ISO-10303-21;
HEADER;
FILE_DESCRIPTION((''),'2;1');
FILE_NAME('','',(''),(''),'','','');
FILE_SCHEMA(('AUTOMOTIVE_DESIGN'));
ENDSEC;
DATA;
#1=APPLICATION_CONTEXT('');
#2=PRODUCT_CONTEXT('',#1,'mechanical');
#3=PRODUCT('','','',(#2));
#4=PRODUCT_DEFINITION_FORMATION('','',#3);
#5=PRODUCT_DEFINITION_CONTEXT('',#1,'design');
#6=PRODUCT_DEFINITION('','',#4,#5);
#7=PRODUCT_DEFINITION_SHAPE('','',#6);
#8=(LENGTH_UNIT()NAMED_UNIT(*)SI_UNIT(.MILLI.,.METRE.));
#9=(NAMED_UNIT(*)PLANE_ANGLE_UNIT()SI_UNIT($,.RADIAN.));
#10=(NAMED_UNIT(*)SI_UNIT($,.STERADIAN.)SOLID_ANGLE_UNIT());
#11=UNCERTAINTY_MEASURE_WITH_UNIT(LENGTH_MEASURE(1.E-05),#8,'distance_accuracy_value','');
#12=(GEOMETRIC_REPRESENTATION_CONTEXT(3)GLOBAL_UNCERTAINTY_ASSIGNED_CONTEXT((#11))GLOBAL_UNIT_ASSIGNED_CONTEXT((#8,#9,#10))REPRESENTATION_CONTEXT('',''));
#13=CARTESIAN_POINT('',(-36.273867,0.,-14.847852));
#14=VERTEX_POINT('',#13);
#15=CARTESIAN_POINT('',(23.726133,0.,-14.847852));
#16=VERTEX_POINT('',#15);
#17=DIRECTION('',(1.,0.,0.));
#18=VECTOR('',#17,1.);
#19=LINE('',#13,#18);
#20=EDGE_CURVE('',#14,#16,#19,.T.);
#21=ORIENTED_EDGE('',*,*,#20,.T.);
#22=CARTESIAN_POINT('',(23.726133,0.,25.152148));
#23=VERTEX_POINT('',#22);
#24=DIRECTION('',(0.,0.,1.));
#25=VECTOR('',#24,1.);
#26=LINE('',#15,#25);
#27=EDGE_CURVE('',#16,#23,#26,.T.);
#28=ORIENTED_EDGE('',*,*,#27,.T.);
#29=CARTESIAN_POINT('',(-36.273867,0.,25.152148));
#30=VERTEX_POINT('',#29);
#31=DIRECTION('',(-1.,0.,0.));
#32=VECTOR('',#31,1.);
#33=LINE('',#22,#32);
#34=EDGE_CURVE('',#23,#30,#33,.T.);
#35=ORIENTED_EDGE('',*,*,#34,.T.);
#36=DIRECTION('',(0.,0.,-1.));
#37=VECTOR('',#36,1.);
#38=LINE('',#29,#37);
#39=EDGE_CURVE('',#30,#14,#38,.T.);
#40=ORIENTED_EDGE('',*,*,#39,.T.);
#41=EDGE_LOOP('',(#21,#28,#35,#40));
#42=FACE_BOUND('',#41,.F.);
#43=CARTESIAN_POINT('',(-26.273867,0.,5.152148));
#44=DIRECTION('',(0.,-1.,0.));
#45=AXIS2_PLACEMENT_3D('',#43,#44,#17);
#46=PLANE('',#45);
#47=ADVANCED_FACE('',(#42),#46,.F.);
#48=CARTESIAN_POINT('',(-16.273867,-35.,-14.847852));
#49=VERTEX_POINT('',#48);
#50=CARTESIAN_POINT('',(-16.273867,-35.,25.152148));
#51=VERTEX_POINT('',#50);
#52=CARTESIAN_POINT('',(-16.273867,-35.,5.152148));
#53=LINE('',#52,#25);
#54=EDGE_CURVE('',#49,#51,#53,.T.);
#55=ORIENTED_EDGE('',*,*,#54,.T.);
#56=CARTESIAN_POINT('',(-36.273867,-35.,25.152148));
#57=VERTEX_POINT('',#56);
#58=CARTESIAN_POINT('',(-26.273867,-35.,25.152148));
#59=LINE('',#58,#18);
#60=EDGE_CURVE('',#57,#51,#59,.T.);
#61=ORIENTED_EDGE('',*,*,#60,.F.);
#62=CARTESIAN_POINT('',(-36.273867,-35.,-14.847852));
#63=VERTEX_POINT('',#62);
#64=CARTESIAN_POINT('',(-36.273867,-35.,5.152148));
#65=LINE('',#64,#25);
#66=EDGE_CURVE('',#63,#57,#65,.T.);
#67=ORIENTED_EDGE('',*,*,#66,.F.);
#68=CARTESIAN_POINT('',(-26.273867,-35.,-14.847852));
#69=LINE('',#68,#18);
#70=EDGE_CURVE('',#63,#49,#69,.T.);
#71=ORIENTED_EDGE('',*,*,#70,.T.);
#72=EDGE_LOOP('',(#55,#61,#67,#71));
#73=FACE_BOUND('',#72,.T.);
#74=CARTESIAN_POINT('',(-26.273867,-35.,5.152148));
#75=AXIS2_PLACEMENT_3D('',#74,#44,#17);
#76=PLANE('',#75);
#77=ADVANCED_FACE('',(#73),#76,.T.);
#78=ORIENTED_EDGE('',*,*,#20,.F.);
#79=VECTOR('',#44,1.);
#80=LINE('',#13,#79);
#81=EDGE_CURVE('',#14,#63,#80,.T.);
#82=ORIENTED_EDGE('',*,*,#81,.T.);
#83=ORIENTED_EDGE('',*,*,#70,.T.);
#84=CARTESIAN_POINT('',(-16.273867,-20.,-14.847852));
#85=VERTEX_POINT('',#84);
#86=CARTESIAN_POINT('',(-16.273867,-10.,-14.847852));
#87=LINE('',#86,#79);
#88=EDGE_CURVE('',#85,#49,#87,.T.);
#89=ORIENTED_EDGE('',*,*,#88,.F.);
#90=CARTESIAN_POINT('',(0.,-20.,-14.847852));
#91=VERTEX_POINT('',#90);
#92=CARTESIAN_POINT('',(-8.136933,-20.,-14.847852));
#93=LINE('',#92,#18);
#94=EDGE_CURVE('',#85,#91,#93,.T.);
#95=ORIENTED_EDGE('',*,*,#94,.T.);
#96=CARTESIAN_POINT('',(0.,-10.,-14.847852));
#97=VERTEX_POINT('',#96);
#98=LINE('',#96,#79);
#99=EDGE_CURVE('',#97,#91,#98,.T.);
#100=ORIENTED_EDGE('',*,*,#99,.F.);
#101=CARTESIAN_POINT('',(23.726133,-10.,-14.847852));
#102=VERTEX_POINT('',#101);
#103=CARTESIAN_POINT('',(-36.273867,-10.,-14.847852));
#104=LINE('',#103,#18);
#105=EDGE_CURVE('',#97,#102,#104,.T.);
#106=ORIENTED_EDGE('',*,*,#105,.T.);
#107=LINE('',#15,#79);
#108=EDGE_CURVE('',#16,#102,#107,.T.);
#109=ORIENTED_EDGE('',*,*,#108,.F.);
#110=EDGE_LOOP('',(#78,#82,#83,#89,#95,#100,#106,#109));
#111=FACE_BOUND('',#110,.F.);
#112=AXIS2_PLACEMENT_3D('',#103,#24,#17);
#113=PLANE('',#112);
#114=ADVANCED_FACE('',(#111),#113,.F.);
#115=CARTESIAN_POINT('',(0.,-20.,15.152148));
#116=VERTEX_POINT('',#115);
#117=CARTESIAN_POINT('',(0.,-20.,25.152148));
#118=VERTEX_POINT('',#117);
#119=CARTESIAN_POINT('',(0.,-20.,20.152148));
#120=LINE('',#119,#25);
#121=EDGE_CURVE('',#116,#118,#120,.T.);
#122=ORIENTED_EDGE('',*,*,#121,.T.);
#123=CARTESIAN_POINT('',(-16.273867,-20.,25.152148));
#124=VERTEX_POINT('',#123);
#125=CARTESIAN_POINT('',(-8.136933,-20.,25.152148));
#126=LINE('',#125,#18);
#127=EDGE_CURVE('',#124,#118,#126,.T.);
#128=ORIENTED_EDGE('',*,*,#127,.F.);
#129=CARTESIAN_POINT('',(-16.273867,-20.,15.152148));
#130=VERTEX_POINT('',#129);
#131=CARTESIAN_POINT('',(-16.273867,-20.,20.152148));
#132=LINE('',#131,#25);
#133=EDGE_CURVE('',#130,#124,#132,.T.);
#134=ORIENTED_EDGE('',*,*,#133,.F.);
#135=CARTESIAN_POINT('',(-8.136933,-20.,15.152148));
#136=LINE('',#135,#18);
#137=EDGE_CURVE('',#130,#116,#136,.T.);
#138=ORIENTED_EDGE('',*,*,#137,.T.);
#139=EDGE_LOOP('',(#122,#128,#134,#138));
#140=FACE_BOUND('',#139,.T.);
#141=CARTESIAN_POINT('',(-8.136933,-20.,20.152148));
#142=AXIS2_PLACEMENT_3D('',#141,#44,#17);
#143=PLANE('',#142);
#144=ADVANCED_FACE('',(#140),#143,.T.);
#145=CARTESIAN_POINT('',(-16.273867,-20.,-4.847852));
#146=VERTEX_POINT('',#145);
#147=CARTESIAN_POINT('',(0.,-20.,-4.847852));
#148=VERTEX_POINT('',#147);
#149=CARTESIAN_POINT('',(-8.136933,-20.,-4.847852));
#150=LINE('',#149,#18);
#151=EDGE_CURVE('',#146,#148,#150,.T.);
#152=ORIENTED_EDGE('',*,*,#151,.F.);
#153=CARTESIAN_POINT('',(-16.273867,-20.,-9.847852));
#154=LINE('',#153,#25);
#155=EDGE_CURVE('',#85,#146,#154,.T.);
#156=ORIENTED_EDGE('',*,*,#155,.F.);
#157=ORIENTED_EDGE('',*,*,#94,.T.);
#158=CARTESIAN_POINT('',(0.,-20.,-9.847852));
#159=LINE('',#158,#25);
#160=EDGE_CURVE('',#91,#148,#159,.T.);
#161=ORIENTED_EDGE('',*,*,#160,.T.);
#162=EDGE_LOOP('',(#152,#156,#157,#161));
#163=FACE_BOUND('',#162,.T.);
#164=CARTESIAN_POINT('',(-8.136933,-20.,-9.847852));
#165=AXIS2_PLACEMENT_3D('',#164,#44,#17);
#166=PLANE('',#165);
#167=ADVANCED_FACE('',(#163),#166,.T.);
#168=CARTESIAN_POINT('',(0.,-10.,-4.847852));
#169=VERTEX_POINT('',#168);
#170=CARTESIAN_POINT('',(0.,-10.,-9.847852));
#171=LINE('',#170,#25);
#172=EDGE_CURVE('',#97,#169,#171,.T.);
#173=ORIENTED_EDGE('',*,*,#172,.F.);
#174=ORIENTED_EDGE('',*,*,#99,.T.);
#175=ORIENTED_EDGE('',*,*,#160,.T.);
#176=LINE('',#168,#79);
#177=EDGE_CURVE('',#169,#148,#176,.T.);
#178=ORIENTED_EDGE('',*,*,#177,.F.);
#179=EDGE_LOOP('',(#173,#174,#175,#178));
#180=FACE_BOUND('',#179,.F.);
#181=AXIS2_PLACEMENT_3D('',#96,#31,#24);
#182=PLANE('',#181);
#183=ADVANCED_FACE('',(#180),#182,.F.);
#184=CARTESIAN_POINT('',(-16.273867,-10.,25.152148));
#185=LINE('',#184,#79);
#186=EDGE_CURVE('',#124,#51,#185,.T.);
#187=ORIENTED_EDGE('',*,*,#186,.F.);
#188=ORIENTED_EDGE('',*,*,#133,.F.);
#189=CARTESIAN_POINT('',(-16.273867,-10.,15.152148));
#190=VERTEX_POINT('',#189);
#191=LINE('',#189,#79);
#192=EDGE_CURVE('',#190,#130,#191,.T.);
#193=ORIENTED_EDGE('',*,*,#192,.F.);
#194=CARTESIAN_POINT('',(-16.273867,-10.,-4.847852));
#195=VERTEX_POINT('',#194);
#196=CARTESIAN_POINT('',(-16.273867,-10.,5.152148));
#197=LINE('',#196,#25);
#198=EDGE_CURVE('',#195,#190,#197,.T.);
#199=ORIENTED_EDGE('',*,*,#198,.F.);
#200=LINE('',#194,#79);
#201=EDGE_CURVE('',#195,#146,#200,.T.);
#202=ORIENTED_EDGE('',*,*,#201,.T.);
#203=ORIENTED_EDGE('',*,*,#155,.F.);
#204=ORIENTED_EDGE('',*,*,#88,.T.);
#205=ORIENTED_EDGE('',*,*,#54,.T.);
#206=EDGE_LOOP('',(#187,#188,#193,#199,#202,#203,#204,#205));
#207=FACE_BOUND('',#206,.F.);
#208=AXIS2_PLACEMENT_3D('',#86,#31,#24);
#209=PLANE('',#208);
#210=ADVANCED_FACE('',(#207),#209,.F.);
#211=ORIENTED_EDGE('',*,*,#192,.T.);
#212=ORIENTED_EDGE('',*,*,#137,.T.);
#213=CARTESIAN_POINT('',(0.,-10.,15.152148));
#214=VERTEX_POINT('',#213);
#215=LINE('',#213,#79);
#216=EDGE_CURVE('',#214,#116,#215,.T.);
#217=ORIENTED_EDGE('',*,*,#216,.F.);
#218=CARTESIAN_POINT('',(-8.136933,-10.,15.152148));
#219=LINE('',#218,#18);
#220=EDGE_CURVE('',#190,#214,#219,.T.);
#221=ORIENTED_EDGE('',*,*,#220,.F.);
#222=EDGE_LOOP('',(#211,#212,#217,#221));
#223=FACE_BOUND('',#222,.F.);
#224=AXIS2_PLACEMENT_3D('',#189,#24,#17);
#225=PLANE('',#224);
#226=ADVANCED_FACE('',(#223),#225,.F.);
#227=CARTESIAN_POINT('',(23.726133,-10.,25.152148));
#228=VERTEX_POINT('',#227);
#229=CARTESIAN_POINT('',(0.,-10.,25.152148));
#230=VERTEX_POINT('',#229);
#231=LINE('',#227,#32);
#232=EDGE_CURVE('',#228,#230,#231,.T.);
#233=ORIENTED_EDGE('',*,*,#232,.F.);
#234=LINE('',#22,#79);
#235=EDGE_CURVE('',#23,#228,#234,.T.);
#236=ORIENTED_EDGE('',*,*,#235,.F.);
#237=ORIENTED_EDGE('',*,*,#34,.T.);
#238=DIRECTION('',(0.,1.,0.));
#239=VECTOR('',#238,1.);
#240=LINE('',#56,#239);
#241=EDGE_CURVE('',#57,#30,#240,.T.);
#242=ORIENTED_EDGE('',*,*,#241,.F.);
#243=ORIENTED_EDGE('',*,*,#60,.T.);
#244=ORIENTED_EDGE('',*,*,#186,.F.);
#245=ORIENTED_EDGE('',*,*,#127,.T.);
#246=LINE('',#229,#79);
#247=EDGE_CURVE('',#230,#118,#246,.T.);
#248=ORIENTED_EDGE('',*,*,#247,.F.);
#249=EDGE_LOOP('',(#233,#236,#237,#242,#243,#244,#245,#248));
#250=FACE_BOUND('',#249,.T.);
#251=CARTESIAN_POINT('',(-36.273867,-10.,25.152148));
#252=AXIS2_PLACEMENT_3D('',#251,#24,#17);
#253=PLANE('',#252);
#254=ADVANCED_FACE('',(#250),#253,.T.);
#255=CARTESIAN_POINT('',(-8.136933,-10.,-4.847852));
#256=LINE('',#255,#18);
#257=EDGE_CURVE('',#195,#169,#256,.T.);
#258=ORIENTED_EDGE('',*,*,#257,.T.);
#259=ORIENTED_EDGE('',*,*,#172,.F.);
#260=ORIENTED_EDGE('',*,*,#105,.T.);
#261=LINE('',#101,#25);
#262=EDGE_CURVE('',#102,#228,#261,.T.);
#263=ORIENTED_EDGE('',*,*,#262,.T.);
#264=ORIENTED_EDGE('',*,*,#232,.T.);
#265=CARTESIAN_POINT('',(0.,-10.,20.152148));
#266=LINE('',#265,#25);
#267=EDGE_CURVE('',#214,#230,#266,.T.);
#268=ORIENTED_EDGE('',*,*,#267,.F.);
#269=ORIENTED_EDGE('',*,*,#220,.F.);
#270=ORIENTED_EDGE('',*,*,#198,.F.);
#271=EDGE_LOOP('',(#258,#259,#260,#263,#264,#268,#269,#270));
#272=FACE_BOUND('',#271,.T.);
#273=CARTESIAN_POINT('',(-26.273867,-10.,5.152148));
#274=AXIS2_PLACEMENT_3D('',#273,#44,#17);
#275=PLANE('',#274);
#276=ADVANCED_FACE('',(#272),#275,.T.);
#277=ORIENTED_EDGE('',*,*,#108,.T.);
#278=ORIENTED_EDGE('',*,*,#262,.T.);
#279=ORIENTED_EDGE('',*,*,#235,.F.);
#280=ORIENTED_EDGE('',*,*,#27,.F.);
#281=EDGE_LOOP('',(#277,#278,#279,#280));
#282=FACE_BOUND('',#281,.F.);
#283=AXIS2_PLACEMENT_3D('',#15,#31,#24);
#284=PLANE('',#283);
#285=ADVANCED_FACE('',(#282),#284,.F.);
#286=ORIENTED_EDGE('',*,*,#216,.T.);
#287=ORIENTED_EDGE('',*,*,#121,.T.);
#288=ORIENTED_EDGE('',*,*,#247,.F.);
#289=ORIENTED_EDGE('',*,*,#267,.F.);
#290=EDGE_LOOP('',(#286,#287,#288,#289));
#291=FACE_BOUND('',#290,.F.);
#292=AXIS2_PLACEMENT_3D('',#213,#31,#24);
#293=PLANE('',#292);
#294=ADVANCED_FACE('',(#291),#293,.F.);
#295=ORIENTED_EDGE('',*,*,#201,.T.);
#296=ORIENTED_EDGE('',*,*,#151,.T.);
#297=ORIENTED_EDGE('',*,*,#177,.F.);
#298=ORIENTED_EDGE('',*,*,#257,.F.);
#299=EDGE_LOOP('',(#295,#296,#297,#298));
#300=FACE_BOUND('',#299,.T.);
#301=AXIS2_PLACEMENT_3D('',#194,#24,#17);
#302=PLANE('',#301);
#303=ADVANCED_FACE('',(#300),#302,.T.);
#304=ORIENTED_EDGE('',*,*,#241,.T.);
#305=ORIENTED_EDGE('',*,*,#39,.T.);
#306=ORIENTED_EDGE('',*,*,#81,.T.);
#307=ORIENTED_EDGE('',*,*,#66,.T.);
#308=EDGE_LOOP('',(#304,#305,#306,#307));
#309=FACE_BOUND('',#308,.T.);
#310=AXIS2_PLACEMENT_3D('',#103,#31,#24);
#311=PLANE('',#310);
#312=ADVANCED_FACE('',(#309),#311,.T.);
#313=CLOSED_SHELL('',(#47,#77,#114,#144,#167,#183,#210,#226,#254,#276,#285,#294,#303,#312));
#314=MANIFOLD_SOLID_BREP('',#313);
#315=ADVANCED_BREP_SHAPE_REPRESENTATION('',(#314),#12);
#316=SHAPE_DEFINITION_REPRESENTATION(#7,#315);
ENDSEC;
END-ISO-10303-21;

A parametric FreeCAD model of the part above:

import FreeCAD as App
import Part
import Sketcher


def add_polygon(sketch, points):
    """Adds a closed chain of lines whose ends are joined by coincident constraints."""
    first, n = sketch.GeometryCount, len(points)
    for a, b in zip(points, points[1:] + points[:1]):
        sketch.addGeometry(Part.LineSegment(App.Vector(*a, 0), App.Vector(*b, 0)), False)
    for i in range(n):
        sketch.addConstraint(Sketcher.Constraint("Coincident", first + i, 2, first + (i + 1) % n, 1))

doc = App.newDocument("Part")
params = doc.addObject("Spreadsheet::Sheet", "Params")
for row, (alias, value) in enumerate([
    ("sketch1_width", "60 mm"),
    ("sketch1_height", "40 mm"),
    ("pad1_length", "10 mm"),
    ("sketch2_width", "20 mm"),
    ("sketch2_height", "40 mm"),
    ("pad2_length", "25 mm"),
    ("sketch3_height", "10 mm"),
    ("pad3_length", "10 mm"),
], start=1):
    params.set(f"A{row}", alias)
    params.set(f"B{row}", "=" + value)
    params.setAlias(f"B{row}", alias)

body = doc.addObject("PartDesign::Body", "Body")

# Sketch on XZ plane
sketch1 = doc.addObject("Sketcher::SketchObject", "Sketch")
body.addObject(sketch1)
sketch1.AttachmentSupport = (doc.XZ_Plane, [""])
sketch1.MapMode = "FlatFace"
add_polygon(sketch1, [(-36, 25), (-36, -15), (24, -15), (24, 25)])  # lines 0-3
sketch1.addConstraint(Sketcher.Constraint("Vertical", 0))
sketch1.addConstraint(Sketcher.Constraint("Horizontal", 1))
sketch1.addConstraint(Sketcher.Constraint("Vertical", 2))
sketch1.addConstraint(Sketcher.Constraint("Horizontal", 3))
sketch1.addConstraint(Sketcher.Constraint("DistanceX", 1, 1, 1, 2, 60.0))
sketch1.addConstraint(Sketcher.Constraint("DistanceY", 0, 2, 0, 1, 40.0))
sketch1.addConstraint(Sketcher.Constraint("DistanceX", 0, 2, -1, 1, 36.273867))
sketch1.addConstraint(Sketcher.Constraint("DistanceY", 0, 2, -1, 1, 14.847852))
sketch1.setExpression("Constraints[8]", "Params.sketch1_width")
sketch1.setExpression("Constraints[9]", "Params.sketch1_height")
pad1 = doc.addObject("PartDesign::Pad", "Pad")
body.addObject(pad1)
pad1.Profile = sketch1
pad1.setExpression("Length", "Params.pad1_length")

# Sketch on XZ plane
sketch2 = doc.addObject("Sketcher::SketchObject", "Sketch001")
body.addObject(sketch2)
sketch2.AttachmentSupport = (doc.XZ_Plane, [""])
sketch2.MapMode = "FlatFace"
sketch2.AttachmentOffset = App.Placement(App.Vector(0, 0, 10), App.Rotation())
add_polygon(sketch2, [(-36, 25), (-36, -15), (-16, -15), (-16, 25)])  # lines 0-3
sketch2.addConstraint(Sketcher.Constraint("Vertical", 0))
sketch2.addConstraint(Sketcher.Constraint("Horizontal", 1))
sketch2.addConstraint(Sketcher.Constraint("Vertical", 2))
sketch2.addConstraint(Sketcher.Constraint("Horizontal", 3))
sketch2.addConstraint(Sketcher.Constraint("DistanceX", 1, 1, 1, 2, 20.0))
sketch2.addConstraint(Sketcher.Constraint("DistanceY", 0, 2, 0, 1, 40.0))
sketch2.addConstraint(Sketcher.Constraint("DistanceX", 0, 2, -1, 1, 36.273867))
sketch2.addConstraint(Sketcher.Constraint("DistanceY", 0, 2, -1, 1, 14.847852))
sketch2.setExpression("Constraints[8]", "Params.sketch2_width")
sketch2.setExpression("Constraints[9]", "Params.sketch2_height")
pad2 = doc.addObject("PartDesign::Pad", "Pad001")
body.addObject(pad2)
pad2.Profile = sketch2
pad2.setExpression("Length", "Params.pad2_length")

# Sketch on XZ plane
sketch3 = doc.addObject("Sketcher::SketchObject", "Sketch002")
body.addObject(sketch3)
sketch3.AttachmentSupport = (doc.XZ_Plane, [""])
sketch3.MapMode = "FlatFace"
sketch3.AttachmentOffset = App.Placement(App.Vector(0, 0, 10), App.Rotation())
add_polygon(sketch3, [(-16, 25), (-16, 15), (0, 15), (0, 25)])  # lines 0-3
add_polygon(sketch3, [(-16, -5), (-16, -15), (0, -15), (0, -5)])  # lines 4-7
sketch3.addConstraint(Sketcher.Constraint("Vertical", 0))
sketch3.addConstraint(Sketcher.Constraint("Horizontal", 1))
sketch3.addConstraint(Sketcher.Constraint("Vertical", 2))
sketch3.addConstraint(Sketcher.Constraint("Horizontal", 3))
sketch3.addConstraint(Sketcher.Constraint("Vertical", 4))
sketch3.addConstraint(Sketcher.Constraint("Horizontal", 5))
sketch3.addConstraint(Sketcher.Constraint("Vertical", 6))
sketch3.addConstraint(Sketcher.Constraint("Horizontal", 7))
sketch3.addConstraint(Sketcher.Constraint("PointOnObject", 1, 2, -2))
sketch3.addConstraint(Sketcher.Constraint("PointOnObject", 5, 2, -2))
sketch3.addConstraint(Sketcher.Constraint("Vertical", 3, 2, 4, 2))
sketch3.addConstraint(Sketcher.Constraint("Equal", 2, 4))
sketch3.addConstraint(Sketcher.Constraint("DistanceY", 0, 2, 0, 1, 10.0))
sketch3.addConstraint(Sketcher.Constraint("DistanceY", 4, 2, 0, 2, 30.0))
sketch3.addConstraint(Sketcher.Constraint("DistanceX", 1, 1, 1, 2, 16.273867))
sketch3.addConstraint(Sketcher.Constraint("DistanceY", -1, 1, 0, 2, 15.152148))
sketch3.setExpression("Constraints[20]", "Params.sketch3_height")
pad3 = doc.addObject("PartDesign::Pad", "Pad002")
body.addObject(pad3)
pad3.Profile = sketch3
pad3.setExpression("Length", "Params.pad3_length")

doc.recompute()
